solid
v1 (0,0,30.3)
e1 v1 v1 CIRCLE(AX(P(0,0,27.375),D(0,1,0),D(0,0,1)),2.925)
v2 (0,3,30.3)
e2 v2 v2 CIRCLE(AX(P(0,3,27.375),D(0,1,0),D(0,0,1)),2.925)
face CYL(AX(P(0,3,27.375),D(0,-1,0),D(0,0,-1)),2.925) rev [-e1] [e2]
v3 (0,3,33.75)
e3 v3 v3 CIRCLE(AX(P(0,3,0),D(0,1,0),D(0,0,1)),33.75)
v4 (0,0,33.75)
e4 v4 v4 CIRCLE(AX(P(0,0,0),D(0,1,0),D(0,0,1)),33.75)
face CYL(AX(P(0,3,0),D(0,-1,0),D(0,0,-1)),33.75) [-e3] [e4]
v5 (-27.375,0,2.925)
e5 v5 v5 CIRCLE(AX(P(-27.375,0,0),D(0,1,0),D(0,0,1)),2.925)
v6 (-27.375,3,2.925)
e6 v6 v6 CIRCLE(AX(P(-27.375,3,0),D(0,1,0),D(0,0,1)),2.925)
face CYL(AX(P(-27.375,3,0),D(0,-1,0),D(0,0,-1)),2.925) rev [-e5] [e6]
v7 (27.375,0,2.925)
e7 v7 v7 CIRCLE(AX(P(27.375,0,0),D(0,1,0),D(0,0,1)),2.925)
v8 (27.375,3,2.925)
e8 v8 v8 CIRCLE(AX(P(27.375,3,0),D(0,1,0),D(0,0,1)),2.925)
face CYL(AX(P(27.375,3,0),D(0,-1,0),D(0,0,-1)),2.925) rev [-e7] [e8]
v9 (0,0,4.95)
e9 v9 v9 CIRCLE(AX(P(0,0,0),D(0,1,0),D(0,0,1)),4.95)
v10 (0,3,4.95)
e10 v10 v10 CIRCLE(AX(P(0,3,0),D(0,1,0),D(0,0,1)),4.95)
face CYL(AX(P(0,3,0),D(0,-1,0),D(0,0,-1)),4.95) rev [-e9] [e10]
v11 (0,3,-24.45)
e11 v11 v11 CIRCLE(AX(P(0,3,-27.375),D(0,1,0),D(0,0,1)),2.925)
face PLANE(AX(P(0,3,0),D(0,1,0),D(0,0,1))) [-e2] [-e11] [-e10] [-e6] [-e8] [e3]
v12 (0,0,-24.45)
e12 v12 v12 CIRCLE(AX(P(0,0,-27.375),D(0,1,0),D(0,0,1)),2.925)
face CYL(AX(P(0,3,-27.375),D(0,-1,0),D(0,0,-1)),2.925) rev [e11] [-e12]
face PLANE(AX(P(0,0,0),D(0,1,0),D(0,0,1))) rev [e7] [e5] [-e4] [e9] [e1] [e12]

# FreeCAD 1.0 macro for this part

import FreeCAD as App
import Part
import Sketcher

doc = App.newDocument("Part")
params = doc.addObject("Spreadsheet::Sheet", "Params")
for row, (alias, value) in enumerate([
    ("sketch1_diameter", "67.5 mm"),
    ("sketch1_diameter2", "9.9 mm"),
    ("sketch1_diameter3", "5.85 mm"),
    ("pad1_length", "3 mm"),
], start=1):
    params.set(f"A{row}", alias)
    params.set(f"B{row}", "=" + value)
    params.setAlias(f"B{row}", alias)

body = doc.addObject("PartDesign::Body", "Body")

# Sketch on XZ plane
sketch1 = doc.addObject("Sketcher::SketchObject", "Sketch")
body.addObject(sketch1)
sketch1.AttachmentSupport = (doc.XZ_Plane, [""])
sketch1.MapMode = "FlatFace"
sketch1.addGeometry(Part.Circle(App.Vector(0, 0, 0), App.Vector(0, 0, 1), 33.8), False)
sketch1.addGeometry(Part.Circle(App.Vector(0, 27.4, 0), App.Vector(0, 0, 1), 2.9), False)
sketch1.addGeometry(Part.Circle(App.Vector(-27.4, 0, 0), App.Vector(0, 0, 1), 2.9), False)
sketch1.addGeometry(Part.Circle(App.Vector(0, 0, 0), App.Vector(0, 0, 1), 5), False)
sketch1.addGeometry(Part.Circle(App.Vector(27.4, 0, 0), App.Vector(0, 0, 1), 2.9), False)
sketch1.addGeometry(Part.Circle(App.Vector(0, -27.4, 0), App.Vector(0, 0, 1), 2.9), False)
sketch1.addConstraint(Sketcher.Constraint("Coincident", 0, 3, -1, 1))
sketch1.addConstraint(Sketcher.Constraint("Coincident", 3, 3, -1, 1))
sketch1.addConstraint(Sketcher.Constraint("Equal", 1, 2))
sketch1.addConstraint(Sketcher.Constraint("Equal", 2, 4))
sketch1.addConstraint(Sketcher.Constraint("Equal", 4, 5))
sketch1.addConstraint(Sketcher.Constraint("Symmetric", 2, 3, 4, 3, -1, 1))
sketch1.addConstraint(Sketcher.Constraint("Symmetric", 1, 3, 5, 3, -1, 1))
sketch1.addConstraint(Sketcher.Constraint("PointOnObject", 1, 3, -2))
sketch1.addConstraint(Sketcher.Constraint("PointOnObject", 2, 3, -1))
sketch1.addConstraint(Sketcher.Constraint("Diameter", 0, 67.5))
sketch1.addConstraint(Sketcher.Constraint("Diameter", 3, 9.9))
sketch1.addConstraint(Sketcher.Constraint("Diameter", 1, 5.85))
sketch1.addConstraint(Sketcher.Constraint("DistanceX", 2, 3, 4, 3, 54.75))
sketch1.addConstraint(Sketcher.Constraint("DistanceY", 5, 3, 1, 3, 54.75))
sketch1.setExpression("Constraints[9]", "Params.sketch1_diameter")
sketch1.setExpression("Constraints[10]", "Params.sketch1_diameter2")
sketch1.setExpression("Constraints[11]", "Params.sketch1_diameter3")
pad1 = doc.addObject("PartDesign::Pad", "Pad")
body.addObject(pad1)
pad1.Profile = sketch1
pad1.setExpression("Length", "Params.pad1_length")
pad1.Reversed = True

doc.recompute()
